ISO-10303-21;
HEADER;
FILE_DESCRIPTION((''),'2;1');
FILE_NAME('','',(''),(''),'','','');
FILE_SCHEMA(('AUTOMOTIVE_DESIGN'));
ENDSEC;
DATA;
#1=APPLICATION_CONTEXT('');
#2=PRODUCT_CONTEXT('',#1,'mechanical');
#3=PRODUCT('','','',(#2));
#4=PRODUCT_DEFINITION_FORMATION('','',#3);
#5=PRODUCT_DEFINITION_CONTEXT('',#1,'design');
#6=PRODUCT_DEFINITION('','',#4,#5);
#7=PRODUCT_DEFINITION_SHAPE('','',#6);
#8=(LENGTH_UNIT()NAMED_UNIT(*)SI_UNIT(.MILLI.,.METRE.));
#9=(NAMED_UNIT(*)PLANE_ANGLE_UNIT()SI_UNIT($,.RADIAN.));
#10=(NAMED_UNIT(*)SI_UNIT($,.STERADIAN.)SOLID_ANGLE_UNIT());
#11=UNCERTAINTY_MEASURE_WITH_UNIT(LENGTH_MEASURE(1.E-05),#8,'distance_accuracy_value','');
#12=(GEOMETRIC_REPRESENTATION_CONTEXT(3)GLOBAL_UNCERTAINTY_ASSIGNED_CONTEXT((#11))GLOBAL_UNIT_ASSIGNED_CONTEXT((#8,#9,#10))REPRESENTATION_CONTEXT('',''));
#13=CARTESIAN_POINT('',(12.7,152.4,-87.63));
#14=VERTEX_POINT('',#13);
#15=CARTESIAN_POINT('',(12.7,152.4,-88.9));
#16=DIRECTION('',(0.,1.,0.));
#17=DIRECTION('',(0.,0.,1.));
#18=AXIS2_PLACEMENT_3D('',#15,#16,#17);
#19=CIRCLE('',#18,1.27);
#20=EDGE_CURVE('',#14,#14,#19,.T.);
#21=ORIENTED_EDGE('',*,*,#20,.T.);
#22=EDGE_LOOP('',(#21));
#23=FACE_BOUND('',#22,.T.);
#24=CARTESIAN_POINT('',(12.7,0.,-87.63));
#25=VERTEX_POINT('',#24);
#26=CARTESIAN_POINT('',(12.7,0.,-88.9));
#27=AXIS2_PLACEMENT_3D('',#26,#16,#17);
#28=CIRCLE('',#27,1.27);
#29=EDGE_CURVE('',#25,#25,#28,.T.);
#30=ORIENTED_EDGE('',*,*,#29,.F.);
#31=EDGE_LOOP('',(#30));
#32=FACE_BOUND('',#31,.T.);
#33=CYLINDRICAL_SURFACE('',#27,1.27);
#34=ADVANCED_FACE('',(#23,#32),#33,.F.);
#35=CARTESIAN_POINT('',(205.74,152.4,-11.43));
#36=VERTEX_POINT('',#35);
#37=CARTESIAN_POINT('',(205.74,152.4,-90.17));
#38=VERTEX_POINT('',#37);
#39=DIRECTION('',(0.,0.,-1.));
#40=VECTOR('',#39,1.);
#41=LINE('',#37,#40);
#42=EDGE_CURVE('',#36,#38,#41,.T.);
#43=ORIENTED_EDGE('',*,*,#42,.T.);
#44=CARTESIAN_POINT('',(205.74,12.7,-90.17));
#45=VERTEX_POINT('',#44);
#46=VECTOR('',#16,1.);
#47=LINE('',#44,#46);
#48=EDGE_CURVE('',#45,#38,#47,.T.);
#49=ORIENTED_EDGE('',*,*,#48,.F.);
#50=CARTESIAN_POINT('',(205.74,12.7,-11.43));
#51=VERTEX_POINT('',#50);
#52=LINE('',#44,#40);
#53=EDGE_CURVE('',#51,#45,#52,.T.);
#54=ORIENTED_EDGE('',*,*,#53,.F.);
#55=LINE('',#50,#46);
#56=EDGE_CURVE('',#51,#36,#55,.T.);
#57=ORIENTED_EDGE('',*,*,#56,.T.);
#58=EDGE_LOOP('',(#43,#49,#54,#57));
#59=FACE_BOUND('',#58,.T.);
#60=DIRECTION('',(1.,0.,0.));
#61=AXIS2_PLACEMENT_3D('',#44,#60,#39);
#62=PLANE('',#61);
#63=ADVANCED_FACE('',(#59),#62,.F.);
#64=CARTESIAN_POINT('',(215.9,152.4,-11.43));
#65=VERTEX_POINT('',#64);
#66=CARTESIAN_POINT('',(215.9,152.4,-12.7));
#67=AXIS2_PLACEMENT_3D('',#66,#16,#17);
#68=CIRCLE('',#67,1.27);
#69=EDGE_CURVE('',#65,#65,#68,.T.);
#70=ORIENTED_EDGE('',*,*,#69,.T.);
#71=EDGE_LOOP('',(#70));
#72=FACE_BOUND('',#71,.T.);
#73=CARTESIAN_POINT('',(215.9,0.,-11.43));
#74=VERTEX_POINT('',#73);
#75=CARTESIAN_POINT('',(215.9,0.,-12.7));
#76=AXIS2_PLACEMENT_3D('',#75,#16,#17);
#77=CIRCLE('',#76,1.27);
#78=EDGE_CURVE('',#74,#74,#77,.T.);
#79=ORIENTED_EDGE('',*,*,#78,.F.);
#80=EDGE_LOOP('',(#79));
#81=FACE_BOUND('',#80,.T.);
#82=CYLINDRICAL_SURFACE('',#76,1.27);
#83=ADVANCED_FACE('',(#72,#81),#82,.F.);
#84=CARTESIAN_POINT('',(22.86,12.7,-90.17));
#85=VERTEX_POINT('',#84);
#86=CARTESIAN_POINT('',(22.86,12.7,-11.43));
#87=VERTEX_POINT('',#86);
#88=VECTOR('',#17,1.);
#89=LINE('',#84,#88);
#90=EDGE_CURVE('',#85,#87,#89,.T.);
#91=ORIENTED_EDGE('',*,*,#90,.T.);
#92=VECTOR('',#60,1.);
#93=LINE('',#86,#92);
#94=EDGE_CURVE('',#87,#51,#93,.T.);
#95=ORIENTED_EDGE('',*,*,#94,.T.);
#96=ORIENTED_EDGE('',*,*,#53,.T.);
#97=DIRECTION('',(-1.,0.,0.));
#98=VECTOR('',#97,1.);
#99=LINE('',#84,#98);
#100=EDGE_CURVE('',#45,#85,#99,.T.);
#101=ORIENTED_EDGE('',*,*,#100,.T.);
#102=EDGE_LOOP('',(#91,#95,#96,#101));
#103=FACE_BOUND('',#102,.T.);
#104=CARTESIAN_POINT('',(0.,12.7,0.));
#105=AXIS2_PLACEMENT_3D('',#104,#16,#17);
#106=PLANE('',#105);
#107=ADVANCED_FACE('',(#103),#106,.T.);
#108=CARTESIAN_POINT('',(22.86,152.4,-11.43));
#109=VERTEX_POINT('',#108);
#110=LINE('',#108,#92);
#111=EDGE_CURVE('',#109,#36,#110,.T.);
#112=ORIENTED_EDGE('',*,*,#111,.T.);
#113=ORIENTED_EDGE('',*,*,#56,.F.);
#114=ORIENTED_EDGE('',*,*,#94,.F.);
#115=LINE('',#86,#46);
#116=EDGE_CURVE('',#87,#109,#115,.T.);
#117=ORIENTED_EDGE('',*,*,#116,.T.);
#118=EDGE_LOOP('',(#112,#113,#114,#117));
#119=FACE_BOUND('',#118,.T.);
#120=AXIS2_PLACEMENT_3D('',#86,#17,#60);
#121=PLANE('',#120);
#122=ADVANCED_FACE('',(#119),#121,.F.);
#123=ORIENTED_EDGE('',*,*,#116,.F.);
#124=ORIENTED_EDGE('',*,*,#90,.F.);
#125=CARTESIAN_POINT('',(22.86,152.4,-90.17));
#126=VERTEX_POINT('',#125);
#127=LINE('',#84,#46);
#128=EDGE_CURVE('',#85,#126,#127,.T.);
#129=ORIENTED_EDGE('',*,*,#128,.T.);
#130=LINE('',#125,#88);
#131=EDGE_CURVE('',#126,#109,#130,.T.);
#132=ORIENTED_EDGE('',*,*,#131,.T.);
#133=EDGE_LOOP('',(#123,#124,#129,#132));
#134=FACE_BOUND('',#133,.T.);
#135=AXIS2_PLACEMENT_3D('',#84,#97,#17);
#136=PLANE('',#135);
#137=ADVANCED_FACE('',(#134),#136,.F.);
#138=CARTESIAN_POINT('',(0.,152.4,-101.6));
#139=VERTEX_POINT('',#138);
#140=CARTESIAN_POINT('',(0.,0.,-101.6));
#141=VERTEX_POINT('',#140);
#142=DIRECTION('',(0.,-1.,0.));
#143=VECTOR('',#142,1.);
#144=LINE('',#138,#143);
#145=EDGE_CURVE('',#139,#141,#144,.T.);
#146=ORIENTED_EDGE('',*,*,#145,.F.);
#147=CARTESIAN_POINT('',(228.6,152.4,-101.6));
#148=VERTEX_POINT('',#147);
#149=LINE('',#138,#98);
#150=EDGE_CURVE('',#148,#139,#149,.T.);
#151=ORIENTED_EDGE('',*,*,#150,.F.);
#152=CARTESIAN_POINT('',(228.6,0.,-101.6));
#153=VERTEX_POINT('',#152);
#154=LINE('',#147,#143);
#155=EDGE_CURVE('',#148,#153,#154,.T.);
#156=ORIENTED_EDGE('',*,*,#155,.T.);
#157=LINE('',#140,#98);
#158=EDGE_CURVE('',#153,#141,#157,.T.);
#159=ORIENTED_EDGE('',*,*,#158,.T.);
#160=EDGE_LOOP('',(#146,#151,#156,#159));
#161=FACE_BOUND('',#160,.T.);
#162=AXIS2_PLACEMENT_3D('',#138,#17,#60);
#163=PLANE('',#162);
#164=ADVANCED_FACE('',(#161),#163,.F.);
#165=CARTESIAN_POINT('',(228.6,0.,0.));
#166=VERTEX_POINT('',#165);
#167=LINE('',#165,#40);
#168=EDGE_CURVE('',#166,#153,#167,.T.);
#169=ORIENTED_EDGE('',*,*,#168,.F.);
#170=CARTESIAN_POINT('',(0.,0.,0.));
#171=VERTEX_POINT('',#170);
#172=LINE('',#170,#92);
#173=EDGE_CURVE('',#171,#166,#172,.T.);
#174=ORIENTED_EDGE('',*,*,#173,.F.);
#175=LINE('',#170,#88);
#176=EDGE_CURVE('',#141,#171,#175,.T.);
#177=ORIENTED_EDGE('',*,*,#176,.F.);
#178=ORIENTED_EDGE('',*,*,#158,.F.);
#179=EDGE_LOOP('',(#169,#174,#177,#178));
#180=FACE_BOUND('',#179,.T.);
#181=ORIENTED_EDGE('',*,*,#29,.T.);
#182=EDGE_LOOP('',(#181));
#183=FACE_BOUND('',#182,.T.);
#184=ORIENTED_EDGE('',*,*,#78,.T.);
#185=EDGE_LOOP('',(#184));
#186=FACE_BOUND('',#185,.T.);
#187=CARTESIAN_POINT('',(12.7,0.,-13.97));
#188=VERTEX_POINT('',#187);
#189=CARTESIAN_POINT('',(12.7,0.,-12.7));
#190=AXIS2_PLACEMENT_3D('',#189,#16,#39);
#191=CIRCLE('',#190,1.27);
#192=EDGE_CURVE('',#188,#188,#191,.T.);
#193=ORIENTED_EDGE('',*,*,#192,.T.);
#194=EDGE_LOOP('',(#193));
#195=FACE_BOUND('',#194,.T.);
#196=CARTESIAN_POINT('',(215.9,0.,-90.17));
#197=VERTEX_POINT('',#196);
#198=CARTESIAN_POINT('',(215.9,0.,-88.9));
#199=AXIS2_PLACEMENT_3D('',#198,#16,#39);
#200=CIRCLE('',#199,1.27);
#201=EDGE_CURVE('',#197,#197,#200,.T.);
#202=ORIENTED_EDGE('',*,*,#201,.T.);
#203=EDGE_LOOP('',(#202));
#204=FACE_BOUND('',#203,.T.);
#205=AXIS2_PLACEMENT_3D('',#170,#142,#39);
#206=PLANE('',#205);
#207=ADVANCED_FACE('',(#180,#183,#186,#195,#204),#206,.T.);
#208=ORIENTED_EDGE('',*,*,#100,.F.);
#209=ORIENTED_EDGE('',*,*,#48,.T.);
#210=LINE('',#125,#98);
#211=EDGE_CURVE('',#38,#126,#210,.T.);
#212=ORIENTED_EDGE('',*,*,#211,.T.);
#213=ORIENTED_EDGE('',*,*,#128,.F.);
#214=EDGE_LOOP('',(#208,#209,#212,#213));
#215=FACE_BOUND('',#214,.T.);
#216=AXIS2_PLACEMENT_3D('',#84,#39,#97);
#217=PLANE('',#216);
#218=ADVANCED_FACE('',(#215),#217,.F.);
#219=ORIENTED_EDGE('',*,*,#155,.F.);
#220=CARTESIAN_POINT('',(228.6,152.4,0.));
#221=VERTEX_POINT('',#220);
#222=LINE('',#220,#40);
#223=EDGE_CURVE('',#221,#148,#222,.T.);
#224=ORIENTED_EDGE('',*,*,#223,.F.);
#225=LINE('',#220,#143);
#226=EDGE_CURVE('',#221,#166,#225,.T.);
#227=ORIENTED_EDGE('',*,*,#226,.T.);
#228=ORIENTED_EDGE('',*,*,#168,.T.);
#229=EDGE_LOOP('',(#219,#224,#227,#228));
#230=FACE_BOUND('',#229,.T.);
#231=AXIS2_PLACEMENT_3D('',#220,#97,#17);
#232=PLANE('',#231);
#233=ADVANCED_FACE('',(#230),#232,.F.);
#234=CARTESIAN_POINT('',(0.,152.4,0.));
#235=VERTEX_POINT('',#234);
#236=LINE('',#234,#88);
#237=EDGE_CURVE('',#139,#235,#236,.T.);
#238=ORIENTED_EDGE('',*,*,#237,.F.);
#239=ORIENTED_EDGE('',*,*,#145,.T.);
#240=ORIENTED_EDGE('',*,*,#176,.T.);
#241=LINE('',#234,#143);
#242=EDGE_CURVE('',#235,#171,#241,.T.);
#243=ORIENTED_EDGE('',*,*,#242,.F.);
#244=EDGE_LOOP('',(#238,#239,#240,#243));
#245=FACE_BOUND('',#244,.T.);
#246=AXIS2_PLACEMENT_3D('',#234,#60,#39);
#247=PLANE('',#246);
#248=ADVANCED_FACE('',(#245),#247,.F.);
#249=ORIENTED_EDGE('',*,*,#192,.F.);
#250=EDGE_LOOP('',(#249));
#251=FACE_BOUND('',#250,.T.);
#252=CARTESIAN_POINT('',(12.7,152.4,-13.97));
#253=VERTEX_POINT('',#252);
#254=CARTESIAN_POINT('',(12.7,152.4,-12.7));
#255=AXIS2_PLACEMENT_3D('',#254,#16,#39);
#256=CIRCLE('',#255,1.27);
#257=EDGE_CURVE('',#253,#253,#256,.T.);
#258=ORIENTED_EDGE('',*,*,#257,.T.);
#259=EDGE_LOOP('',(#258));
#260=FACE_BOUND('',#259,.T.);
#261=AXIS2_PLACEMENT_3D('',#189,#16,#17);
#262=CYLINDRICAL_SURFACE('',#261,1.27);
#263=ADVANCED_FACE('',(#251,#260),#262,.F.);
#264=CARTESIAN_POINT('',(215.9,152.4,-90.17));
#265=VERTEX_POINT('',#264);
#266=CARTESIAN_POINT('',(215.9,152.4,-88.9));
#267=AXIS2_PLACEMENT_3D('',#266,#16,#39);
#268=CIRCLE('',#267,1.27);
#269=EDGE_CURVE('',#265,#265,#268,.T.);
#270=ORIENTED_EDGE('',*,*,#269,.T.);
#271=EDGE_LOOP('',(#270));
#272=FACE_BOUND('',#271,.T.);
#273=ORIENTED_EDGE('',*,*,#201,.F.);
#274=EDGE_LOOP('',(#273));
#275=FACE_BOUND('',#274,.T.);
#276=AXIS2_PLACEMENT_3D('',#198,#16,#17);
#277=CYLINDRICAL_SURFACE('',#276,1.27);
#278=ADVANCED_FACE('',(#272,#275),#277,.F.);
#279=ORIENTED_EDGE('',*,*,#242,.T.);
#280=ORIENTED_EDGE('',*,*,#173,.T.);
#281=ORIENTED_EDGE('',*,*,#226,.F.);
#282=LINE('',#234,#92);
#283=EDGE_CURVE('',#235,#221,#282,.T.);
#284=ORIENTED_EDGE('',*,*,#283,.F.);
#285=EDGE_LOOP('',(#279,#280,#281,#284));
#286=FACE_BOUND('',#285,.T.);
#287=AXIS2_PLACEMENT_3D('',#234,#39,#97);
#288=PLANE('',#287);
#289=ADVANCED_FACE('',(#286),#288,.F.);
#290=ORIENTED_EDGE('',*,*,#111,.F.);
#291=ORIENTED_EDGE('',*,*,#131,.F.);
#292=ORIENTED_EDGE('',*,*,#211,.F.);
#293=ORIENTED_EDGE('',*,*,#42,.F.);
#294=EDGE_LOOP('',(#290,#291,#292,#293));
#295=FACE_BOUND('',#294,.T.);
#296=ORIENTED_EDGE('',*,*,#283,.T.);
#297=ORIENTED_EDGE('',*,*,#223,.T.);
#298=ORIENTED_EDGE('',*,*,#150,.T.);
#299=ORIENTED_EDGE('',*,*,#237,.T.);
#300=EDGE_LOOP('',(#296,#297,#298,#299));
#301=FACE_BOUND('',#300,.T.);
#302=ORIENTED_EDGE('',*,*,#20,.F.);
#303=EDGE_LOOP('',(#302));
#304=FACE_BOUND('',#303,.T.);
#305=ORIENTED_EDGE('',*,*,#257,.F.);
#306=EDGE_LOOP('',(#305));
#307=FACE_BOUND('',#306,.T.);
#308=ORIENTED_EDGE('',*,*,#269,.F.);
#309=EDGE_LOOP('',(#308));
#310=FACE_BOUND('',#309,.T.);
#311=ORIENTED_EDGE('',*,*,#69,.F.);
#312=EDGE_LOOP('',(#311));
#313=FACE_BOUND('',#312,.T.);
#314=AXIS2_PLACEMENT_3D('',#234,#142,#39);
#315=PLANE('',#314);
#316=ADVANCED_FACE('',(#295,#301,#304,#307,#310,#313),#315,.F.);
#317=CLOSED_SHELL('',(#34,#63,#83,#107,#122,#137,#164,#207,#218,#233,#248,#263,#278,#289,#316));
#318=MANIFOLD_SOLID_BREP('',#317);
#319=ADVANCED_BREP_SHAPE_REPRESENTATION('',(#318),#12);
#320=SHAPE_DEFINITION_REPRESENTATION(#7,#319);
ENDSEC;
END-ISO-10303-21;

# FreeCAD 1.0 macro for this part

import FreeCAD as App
import Part
import Sketcher
from FreeCAD import Vector
Q = App.Units.Quantity

doc = App.newDocument("Part")
body = doc.addObject("PartDesign::Body", "Body")

# Sketch on XZ plane
sketch1 = body.newObject("Sketcher::SketchObject", "Sketch")
sketch1.AttachmentSupport = (doc.getObject("XZ_Plane"), [""])
sketch1.MapMode = "FlatFace"
sketch1.addGeometry(Part.LineSegment(Vector(0, -101.6, 0), Vector(0, 0, 0)), False)
sketch1.addGeometry(Part.LineSegment(Vector(0, 0, 0), Vector(228.6, 0, 0)), False)
sketch1.addGeometry(Part.LineSegment(Vector(228.6, 0, 0), Vector(228.6, -101.6, 0)), False)
sketch1.addGeometry(Part.LineSegment(Vector(228.6, -101.6, 0), Vector(0, -101.6, 0)), False)
sketch1.addConstraint(Sketcher.Constraint("Coincident", 0, 2, 1, 1))
sketch1.addConstraint(Sketcher.Constraint("Coincident", 1, 2, 2, 1))
sketch1.addConstraint(Sketcher.Constraint("Coincident", 2, 2, 3, 1))
sketch1.addConstraint(Sketcher.Constraint("Coincident", 3, 2, 0, 1))
sketch1.addConstraint(Sketcher.Constraint("Vertical", 0))
sketch1.addConstraint(Sketcher.Constraint("Horizontal", 1))
sketch1.addConstraint(Sketcher.Constraint("Vertical", 2))
sketch1.addConstraint(Sketcher.Constraint("Horizontal", 3))
sketch1.addConstraint(Sketcher.Constraint("Coincident", 0, 2, -1, 1))
sketch1.addConstraint(Sketcher.Constraint("DistanceX", 1, 1, 1, 2, Q("9 in")))
sketch1.addConstraint(Sketcher.Constraint("DistanceY", 0, 1, 0, 2, Q("4 in")))
pad1 = body.newObject("PartDesign::Pad", "Pad")
pad1.Profile = sketch1
pad1.Length = Q("6 in")
pad1.Reversed = True

# Sketch on XZ plane
sketch2 = body.newObject("Sketcher::SketchObject", "Sketch001")
sketch2.AttachmentSupport = (doc.getObject("XZ_Plane"), [""])
sketch2.MapMode = "FlatFace"
sketch2.AttachmentOffset = App.Placement(Vector(0, 0, -6 * 25.4), App.Rotation())
sketch2.addGeometry(Part.LineSegment(Vector(22.86, -90.17, 0), Vector(22.86, -11.43, 0)), False)
sketch2.addGeometry(Part.LineSegment(Vector(22.86, -11.43, 0), Vector(205.74, -11.43, 0)), False)
sketch2.addGeometry(Part.LineSegment(Vector(205.74, -11.43, 0), Vector(205.74, -90.17, 0)), False)
sketch2.addGeometry(Part.LineSegment(Vector(205.74, -90.17, 0), Vector(22.86, -90.17, 0)), False)
sketch2.addConstraint(Sketcher.Constraint("Coincident", 0, 2, 1, 1))
sketch2.addConstraint(Sketcher.Constraint("Coincident", 1, 2, 2, 1))
sketch2.addConstraint(Sketcher.Constraint("Coincident", 2, 2, 3, 1))
sketch2.addConstraint(Sketcher.Constraint("Coincident", 3, 2, 0, 1))
sketch2.addConstraint(Sketcher.Constraint("Vertical", 0))
sketch2.addConstraint(Sketcher.Constraint("Horizontal", 1))
sketch2.addConstraint(Sketcher.Constraint("Vertical", 2))
sketch2.addConstraint(Sketcher.Constraint("Horizontal", 3))
sketch2.addConstraint(Sketcher.Constraint("DistanceX", 1, 1, 1, 2, Q("7.2 in")))
sketch2.addConstraint(Sketcher.Constraint("DistanceY", 0, 1, 0, 2, Q("3.1 in")))
sketch2.addConstraint(Sketcher.Constraint("DistanceX", -1, 1, 0, 2, Q("0.9 in")))
sketch2.addConstraint(Sketcher.Constraint("DistanceY", 0, 2, -1, 1, Q("0.45 in")))
pocket1 = body.newObject("PartDesign::Pocket", "Pocket")
pocket1.Profile = sketch2
pocket1.Length = Q("5.5 in")
pocket1.Reversed = True

# Sketch on XZ plane
sketch3 = body.newObject("Sketcher::SketchObject", "Sketch002")
sketch3.AttachmentSupport = (doc.getObject("XZ_Plane"), [""])
sketch3.MapMode = "FlatFace"
sketch3.AttachmentOffset = App.Placement(Vector(0, 0, -6 * 25.4), App.Rotation())
sketch3.addGeometry(Part.Circle(Vector(12.7, -88.9, 0), Vector(0, 0, 1), 1.27), False)
sketch3.addGeometry(Part.Circle(Vector(215.9, -88.9, 0), Vector(0, 0, 1), 1.27), False)
sketch3.addGeometry(Part.Circle(Vector(12.7, -12.7, 0), Vector(0, 0, 1), 1.27), False)
sketch3.addGeometry(Part.Circle(Vector(215.9, -12.7, 0), Vector(0, 0, 1), 1.27), False)
sketch3.addConstraint(Sketcher.Constraint("Equal", 0, 1))
sketch3.addConstraint(Sketcher.Constraint("Equal", 1, 2))
sketch3.addConstraint(Sketcher.Constraint("Equal", 2, 3))
sketch3.addConstraint(Sketcher.Constraint("Horizontal", 0, 3, 1, 3))
sketch3.addConstraint(Sketcher.Constraint("Horizontal", 2, 3, 3, 3))
sketch3.addConstraint(Sketcher.Constraint("Vertical", 0, 3, 2, 3))
sketch3.addConstraint(Sketcher.Constraint("Vertical", 1, 3, 3, 3))
sketch3.addConstraint(Sketcher.Constraint("Diameter", 0, Q("0.1 in")))
sketch3.addConstraint(Sketcher.Constraint("DistanceX", 0, 3, 1, 3, Q("8 in")))
sketch3.addConstraint(Sketcher.Constraint("DistanceY", 0, 3, 2, 3, Q("3 in")))
sketch3.addConstraint(Sketcher.Constraint("DistanceX", -1, 1, 0, 3, Q("0.5 in")))
sketch3.addConstraint(Sketcher.Constraint("DistanceY", 0, 3, -1, 1, Q("3.5 in")))
pocket2 = body.newObject("PartDesign::Pocket", "Pocket001")
pocket2.Profile = sketch3
pocket2.Type = "ThroughAll"
pocket2.Reversed = True

doc.recompute()
